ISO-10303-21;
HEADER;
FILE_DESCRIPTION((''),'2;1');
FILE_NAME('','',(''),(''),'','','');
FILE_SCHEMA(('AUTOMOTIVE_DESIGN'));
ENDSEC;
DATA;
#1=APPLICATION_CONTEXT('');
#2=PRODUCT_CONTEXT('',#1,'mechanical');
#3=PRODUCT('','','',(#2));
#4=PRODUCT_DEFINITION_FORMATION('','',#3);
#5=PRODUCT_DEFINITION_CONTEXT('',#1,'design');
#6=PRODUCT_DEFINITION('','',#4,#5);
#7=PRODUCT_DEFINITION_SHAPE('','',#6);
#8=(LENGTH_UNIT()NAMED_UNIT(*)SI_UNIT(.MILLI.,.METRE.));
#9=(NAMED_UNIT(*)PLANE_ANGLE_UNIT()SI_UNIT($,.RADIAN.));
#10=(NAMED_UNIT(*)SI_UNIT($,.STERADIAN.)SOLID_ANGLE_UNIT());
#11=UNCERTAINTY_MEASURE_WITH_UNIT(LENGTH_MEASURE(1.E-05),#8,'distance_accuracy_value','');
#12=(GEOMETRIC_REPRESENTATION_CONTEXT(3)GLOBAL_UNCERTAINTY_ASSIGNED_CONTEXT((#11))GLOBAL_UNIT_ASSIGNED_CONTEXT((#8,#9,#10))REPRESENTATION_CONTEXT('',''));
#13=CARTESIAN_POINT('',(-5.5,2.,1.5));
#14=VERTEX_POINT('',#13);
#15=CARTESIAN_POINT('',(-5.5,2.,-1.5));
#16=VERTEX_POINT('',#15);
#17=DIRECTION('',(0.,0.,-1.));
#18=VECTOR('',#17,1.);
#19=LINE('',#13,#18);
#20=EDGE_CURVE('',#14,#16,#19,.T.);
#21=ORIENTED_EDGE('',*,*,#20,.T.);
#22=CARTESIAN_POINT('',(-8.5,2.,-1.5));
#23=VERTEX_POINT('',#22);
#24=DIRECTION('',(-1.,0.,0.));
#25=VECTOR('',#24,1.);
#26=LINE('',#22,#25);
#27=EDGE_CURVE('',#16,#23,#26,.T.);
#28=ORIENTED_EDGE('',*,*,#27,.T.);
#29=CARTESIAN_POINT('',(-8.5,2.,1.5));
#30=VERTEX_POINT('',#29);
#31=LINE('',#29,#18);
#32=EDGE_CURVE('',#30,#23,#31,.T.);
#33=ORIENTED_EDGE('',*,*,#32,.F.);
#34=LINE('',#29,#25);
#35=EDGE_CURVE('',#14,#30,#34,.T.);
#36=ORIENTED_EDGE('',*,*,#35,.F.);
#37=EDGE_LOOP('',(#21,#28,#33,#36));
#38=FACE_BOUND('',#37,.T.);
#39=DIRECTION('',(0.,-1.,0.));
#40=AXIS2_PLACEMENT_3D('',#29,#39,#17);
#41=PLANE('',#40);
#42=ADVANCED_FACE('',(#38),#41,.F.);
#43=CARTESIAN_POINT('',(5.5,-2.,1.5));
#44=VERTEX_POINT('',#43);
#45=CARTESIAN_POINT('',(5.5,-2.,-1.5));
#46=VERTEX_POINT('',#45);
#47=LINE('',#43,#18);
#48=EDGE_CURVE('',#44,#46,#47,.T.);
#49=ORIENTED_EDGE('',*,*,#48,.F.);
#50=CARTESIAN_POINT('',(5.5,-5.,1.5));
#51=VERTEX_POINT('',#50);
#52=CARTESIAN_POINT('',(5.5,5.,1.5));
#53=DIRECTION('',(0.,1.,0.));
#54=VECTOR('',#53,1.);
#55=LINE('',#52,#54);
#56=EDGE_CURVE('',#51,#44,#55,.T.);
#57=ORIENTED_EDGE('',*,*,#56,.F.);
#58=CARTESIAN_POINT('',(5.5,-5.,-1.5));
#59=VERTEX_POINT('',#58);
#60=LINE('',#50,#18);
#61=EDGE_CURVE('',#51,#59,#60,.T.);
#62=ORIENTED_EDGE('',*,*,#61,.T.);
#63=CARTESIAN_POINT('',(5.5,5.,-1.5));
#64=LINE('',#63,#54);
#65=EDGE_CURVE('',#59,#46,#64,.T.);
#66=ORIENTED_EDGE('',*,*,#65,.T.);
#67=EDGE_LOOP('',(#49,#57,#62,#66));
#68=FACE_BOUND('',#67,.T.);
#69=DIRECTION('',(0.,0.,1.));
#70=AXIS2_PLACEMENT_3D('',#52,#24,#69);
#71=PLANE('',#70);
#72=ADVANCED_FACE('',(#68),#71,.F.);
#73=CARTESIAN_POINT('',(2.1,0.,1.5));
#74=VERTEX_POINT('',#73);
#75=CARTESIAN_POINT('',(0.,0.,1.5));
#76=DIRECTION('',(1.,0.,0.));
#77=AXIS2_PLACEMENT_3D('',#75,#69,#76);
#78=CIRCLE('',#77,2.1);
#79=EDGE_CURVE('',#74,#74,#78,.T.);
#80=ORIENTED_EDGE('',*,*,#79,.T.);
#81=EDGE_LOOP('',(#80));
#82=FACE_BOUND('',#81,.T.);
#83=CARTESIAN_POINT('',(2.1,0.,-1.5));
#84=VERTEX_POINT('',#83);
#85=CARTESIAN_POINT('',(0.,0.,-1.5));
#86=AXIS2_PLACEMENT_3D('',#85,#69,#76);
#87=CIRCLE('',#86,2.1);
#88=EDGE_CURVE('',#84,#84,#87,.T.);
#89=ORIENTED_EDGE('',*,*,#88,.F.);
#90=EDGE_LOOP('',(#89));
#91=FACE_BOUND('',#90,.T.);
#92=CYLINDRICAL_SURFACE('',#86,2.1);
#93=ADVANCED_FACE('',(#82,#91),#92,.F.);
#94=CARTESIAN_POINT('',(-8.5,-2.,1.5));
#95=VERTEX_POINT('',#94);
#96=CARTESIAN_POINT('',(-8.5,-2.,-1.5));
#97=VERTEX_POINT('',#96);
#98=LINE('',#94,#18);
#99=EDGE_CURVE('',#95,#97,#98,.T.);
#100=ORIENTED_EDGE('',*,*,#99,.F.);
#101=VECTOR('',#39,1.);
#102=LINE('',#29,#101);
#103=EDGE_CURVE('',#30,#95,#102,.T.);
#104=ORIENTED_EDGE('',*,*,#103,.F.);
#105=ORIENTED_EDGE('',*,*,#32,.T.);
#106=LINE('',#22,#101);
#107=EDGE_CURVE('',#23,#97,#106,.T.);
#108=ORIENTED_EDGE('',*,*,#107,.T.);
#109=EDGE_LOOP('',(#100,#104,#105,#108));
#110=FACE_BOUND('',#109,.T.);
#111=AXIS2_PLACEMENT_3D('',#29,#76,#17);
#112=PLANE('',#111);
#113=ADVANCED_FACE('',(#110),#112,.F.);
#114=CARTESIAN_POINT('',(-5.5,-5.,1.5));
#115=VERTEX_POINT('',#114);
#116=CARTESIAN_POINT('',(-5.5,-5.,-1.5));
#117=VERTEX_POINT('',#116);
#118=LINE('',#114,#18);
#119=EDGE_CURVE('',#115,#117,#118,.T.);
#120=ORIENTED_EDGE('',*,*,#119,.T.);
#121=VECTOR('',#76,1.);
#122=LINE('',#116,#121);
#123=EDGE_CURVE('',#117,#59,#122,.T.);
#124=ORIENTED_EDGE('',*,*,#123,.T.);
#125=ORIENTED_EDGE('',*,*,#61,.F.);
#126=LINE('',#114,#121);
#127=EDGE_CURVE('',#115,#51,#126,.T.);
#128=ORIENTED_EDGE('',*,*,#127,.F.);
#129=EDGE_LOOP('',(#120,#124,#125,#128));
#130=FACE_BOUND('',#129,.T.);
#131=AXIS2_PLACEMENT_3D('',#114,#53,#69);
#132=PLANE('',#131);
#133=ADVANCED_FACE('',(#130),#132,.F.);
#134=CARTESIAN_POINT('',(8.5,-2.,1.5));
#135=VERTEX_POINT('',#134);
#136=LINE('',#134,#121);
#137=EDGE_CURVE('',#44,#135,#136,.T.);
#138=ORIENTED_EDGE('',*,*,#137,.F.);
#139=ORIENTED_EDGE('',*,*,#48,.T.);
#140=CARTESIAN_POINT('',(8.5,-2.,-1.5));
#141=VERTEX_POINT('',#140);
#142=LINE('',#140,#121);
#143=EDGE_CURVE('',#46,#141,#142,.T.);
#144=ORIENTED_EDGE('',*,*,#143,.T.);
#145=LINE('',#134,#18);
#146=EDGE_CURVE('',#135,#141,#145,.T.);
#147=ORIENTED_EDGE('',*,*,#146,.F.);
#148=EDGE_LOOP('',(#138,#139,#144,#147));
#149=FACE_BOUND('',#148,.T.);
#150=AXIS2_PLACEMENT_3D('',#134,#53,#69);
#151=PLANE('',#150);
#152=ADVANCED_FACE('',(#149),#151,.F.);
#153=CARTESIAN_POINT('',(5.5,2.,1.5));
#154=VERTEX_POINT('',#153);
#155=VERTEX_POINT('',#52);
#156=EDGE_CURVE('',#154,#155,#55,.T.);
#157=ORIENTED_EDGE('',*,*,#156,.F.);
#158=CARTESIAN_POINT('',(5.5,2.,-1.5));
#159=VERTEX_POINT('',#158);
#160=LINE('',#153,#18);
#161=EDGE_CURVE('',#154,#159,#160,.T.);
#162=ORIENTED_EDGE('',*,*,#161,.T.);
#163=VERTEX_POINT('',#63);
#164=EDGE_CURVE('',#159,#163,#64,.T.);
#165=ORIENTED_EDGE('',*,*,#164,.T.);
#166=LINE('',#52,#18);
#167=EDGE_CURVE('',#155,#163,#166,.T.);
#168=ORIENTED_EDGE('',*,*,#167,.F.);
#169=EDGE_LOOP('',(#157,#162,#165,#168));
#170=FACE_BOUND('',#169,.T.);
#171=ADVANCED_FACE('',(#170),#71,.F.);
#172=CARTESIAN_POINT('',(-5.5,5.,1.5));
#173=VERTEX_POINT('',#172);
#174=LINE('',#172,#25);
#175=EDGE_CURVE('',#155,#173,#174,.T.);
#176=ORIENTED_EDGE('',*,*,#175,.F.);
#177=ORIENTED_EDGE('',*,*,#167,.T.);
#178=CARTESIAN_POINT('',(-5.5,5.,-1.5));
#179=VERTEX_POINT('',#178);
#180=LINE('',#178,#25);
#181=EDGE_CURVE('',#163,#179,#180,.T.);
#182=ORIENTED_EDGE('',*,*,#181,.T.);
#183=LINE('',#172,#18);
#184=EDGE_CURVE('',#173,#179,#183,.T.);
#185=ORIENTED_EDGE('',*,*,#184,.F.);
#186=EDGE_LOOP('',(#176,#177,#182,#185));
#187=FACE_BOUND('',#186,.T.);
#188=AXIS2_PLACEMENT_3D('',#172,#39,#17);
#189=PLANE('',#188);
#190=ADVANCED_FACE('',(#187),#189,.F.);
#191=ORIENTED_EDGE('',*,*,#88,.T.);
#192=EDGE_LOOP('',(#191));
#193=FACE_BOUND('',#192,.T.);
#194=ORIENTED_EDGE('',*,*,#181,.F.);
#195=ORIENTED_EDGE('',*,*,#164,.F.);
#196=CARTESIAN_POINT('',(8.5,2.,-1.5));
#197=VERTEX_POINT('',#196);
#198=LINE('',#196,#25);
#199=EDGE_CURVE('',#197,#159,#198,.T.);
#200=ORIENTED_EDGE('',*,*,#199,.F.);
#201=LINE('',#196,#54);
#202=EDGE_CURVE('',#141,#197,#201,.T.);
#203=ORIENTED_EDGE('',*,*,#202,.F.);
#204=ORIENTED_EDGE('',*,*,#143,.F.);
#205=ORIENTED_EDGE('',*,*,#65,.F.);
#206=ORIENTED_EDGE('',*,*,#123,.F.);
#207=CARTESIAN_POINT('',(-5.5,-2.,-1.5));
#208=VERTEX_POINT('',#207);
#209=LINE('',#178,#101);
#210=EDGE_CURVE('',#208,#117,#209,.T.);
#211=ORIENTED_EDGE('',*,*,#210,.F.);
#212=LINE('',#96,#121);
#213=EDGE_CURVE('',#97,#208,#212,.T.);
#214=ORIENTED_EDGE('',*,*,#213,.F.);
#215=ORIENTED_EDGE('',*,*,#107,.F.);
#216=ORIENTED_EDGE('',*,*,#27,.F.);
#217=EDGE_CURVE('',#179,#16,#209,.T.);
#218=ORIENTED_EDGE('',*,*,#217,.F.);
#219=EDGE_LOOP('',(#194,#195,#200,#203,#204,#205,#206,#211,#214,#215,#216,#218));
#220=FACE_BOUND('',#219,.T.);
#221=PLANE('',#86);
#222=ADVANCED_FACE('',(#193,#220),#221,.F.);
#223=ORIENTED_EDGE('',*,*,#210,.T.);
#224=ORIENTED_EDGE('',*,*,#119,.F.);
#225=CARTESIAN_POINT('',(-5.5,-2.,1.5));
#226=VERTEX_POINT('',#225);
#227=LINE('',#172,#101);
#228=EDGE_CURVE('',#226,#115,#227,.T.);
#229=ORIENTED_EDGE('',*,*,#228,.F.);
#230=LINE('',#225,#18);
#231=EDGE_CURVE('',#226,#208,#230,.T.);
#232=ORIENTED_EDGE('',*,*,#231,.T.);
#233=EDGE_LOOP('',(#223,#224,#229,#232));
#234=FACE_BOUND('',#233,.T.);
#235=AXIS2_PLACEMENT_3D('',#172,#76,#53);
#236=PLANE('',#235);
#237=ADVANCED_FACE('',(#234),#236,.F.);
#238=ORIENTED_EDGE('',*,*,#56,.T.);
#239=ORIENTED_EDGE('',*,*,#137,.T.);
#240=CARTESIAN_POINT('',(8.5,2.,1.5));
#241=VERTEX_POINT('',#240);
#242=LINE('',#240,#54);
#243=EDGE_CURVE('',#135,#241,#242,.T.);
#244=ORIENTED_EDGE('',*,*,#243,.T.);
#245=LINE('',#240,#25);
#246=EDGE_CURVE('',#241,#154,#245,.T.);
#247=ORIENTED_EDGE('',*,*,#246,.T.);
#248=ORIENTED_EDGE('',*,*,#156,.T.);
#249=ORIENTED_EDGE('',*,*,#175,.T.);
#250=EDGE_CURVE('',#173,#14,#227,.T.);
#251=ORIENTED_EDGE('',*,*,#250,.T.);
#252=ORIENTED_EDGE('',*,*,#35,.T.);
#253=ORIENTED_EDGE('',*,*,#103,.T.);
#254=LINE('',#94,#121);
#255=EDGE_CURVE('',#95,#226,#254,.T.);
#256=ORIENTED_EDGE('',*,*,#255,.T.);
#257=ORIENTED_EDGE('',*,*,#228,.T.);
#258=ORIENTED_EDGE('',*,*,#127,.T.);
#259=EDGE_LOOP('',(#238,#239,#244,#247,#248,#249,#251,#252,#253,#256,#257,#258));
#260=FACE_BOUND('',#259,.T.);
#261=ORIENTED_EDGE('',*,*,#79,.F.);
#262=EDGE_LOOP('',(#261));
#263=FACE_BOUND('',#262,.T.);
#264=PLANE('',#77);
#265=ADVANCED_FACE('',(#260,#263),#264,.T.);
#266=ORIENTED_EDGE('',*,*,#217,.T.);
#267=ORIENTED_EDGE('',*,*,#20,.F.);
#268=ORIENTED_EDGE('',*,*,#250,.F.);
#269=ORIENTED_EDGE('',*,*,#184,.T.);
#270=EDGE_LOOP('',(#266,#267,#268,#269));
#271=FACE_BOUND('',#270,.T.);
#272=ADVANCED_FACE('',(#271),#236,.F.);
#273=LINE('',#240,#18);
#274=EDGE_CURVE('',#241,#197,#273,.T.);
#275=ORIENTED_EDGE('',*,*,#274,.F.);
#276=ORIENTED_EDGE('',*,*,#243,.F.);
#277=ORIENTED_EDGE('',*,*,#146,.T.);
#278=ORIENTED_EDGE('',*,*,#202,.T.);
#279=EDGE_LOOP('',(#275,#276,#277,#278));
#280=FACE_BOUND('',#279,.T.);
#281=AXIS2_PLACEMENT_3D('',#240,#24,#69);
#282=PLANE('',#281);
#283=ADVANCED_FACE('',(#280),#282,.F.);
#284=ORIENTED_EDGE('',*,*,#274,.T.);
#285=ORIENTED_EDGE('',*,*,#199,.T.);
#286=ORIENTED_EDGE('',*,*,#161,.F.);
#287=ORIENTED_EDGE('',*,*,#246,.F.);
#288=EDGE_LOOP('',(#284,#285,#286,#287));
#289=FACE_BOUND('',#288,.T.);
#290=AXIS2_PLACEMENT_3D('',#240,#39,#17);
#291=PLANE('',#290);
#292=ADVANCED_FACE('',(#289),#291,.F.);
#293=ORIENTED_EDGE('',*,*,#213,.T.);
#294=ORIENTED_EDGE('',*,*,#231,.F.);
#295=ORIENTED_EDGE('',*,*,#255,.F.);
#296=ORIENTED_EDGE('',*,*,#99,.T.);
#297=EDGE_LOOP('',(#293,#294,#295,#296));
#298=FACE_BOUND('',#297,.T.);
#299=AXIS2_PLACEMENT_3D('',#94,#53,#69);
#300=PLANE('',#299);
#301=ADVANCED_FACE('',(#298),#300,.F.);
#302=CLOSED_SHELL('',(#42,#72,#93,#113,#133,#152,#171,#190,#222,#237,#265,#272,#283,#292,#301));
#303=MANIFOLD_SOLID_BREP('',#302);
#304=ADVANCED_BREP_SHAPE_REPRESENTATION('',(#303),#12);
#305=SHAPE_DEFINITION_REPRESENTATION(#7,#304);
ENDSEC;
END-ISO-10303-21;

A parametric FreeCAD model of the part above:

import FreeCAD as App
import Part
import Sketcher

V = App.Vector

doc = App.newDocument("Part")
body = doc.addObject("PartDesign::Body", "Body")

# Sketch on XY plane
sketch1 = body.newObject("Sketcher::SketchObject", "Sketch")
sketch1.AttachmentSupport = (doc.getObject("XY_Plane"), [""])
sketch1.MapMode = "FlatFace"
sketch1.addGeometry([
    Part.LineSegment(V(-5.5, 5, 0), V(-5.5, -5, 0)),
    Part.LineSegment(V(-5.5, -5, 0), V(5.5, -5, 0)),
    Part.LineSegment(V(5.5, -5, 0), V(5.5, 5, 0)),
    Part.LineSegment(V(5.5, 5, 0), V(-5.5, 5, 0)),
], False)
sketch1.addConstraint([
    Sketcher.Constraint("Coincident", 0, 2, 1, 1),
    Sketcher.Constraint("Coincident", 1, 2, 2, 1),
    Sketcher.Constraint("Coincident", 2, 2, 3, 1),
    Sketcher.Constraint("Coincident", 3, 2, 0, 1),
    Sketcher.Constraint("Vertical", 0),
    Sketcher.Constraint("Horizontal", 1),
    Sketcher.Constraint("Vertical", 2),
    Sketcher.Constraint("Horizontal", 3),
    Sketcher.Constraint("Symmetric", 0, 2, 2, 2, -1, 1),
    Sketcher.Constraint("DistanceX", 1, 1, 1, 2, 11.0),
    Sketcher.Constraint("DistanceY", 0, 2, 0, 1, 10.0),
])
pad1 = body.newObject("PartDesign::Pad", "Pad")
pad1.Profile = sketch1
pad1.Length = 3
pad1.Midplane = True

# Sketch on XY plane
sketch2 = body.newObject("Sketcher::SketchObject", "Sketch001")
sketch2.AttachmentSupport = (doc.getObject("XY_Plane"), [""])
sketch2.MapMode = "FlatFace"
sketch2.addGeometry([
    Part.LineSegment(V(-8.5, 2, 0), V(-8.5, -2, 0)),  # 0
    Part.LineSegment(V(-8.5, -2, 0), V(-5.5, -2, 0)),  # 1
    Part.LineSegment(V(-5.5, -2, 0), V(-5.5, 2, 0)),  # 2
    Part.LineSegment(V(-5.5, 2, 0), V(-8.5, 2, 0)),  # 3
    Part.LineSegment(V(5.5, 2, 0), V(5.5, -2, 0)),  # 4
    Part.LineSegment(V(5.5, -2, 0), V(8.5, -2, 0)),  # 5
    Part.LineSegment(V(8.5, -2, 0), V(8.5, 2, 0)),  # 6
    Part.LineSegment(V(8.5, 2, 0), V(5.5, 2, 0)),  # 7
], False)
sketch2.addConstraint([
    Sketcher.Constraint("Coincident", 0, 2, 1, 1),
    Sketcher.Constraint("Coincident", 1, 2, 2, 1),
    Sketcher.Constraint("Coincident", 2, 2, 3, 1),
    Sketcher.Constraint("Coincident", 3, 2, 0, 1),
    Sketcher.Constraint("Coincident", 4, 2, 5, 1),
    Sketcher.Constraint("Coincident", 5, 2, 6, 1),
    Sketcher.Constraint("Coincident", 6, 2, 7, 1),
    Sketcher.Constraint("Coincident", 7, 2, 4, 1),
    Sketcher.Constraint("Vertical", 0),
    Sketcher.Constraint("Horizontal", 1),
    Sketcher.Constraint("Vertical", 2),
    Sketcher.Constraint("Horizontal", 3),
    Sketcher.Constraint("Vertical", 4),
    Sketcher.Constraint("Horizontal", 5),
    Sketcher.Constraint("Vertical", 6),
    Sketcher.Constraint("Horizontal", 7),
    Sketcher.Constraint("Symmetric", 2, 2, 4, 2, -1, 1),
    Sketcher.Constraint("Symmetric", 0, 2, 6, 2, -1, 1),
    Sketcher.Constraint("Horizontal", 1, 2, 4, 2),
    Sketcher.Constraint("DistanceX", 1, 1, 1, 2, 3.0),
    Sketcher.Constraint("DistanceY", 0, 2, 0, 1, 4.0),
    Sketcher.Constraint("DistanceX", 1, 2, 4, 2, 11.0),
])
pad2 = body.newObject("PartDesign::Pad", "Pad001")
pad2.Profile = sketch2
pad2.Length = 3
pad2.Midplane = True

# Sketch on XY plane
sketch3 = body.newObject("Sketcher::SketchObject", "Sketch002")
sketch3.AttachmentSupport = (doc.getObject("XY_Plane"), [""])
sketch3.MapMode = "FlatFace"
sketch3.addGeometry(Part.Circle(V(0, 0, 0), V(0, 0, 1), 2.1), False)
sketch3.addConstraint([
    Sketcher.Constraint("Coincident", 0, 3, -1, 1),
    Sketcher.Constraint("Diameter", 0, 4.2),
])
pocket1 = body.newObject("PartDesign::Pocket", "Pocket")
pocket1.Profile = sketch3
pocket1.Type = "ThroughAll"
pocket1.Midplane = True

doc.recompute()
